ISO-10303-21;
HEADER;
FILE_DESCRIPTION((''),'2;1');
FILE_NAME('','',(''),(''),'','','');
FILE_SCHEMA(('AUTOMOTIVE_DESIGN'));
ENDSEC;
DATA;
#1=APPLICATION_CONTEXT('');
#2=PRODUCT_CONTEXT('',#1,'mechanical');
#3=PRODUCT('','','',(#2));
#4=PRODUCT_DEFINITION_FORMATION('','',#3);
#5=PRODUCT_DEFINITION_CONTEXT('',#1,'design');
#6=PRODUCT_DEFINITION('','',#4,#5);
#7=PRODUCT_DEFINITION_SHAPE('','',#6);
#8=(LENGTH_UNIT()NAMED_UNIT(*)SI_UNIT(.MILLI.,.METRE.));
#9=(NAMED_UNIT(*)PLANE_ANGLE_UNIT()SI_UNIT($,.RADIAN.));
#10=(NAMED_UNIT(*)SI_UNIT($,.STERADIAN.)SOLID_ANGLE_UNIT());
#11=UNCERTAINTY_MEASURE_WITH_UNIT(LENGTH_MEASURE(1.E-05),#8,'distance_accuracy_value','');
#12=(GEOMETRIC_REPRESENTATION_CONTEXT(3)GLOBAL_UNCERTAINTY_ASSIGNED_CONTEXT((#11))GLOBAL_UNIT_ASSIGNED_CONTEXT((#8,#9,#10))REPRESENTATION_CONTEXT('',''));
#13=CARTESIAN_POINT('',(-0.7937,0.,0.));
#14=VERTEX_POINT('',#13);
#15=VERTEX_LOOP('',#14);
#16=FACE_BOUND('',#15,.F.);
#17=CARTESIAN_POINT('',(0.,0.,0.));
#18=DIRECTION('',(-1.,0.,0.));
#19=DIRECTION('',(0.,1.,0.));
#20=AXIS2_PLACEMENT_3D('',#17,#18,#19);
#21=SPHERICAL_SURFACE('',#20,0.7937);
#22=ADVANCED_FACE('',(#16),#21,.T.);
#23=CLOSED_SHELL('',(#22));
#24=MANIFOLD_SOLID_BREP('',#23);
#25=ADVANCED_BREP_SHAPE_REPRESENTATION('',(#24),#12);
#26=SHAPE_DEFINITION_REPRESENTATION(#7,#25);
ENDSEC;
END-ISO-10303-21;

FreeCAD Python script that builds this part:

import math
import FreeCAD as App
import Part
import Sketcher

V = App.Vector
Q = App.Units.Quantity

doc = App.newDocument("Part")
body = doc.addObject("PartDesign::Body", "Body")

# Sketch on XY plane
sketch1 = body.newObject("Sketcher::SketchObject", "Sketch")
sketch1.AttachmentSupport = (doc.getObject("XY_Plane"), [""])
sketch1.MapMode = "FlatFace"
sketch1.addGeometry([
    Part.LineSegment(V(-0.8, 0, 0), V(0.8, 0, 0)),
    Part.ArcOfCircle(Part.Circle(V(0, 0, 0), V(0, 0, 1), 0.8), math.radians(0), math.radians(180)),
], False)
sketch1.addConstraint([
    Sketcher.Constraint("Coincident", 0, 1, 1, 2),
    Sketcher.Constraint("Coincident", 1, 1, 0, 2),
    Sketcher.Constraint("Horizontal", 0),
    Sketcher.Constraint("Coincident", 1, 3, -1, 1),
    Sketcher.Constraint("PointOnObject", 0, 1, -1),
    Sketcher.Constraint("Radius", 1, Q("0.031248 in")),
])
revolution = body.newObject("PartDesign::Revolution", "Revolution")
revolution.Profile = sketch1
revolution.ReferenceAxis = (sketch1, ["H_Axis"])
revolution.Angle = 360

doc.recompute()
